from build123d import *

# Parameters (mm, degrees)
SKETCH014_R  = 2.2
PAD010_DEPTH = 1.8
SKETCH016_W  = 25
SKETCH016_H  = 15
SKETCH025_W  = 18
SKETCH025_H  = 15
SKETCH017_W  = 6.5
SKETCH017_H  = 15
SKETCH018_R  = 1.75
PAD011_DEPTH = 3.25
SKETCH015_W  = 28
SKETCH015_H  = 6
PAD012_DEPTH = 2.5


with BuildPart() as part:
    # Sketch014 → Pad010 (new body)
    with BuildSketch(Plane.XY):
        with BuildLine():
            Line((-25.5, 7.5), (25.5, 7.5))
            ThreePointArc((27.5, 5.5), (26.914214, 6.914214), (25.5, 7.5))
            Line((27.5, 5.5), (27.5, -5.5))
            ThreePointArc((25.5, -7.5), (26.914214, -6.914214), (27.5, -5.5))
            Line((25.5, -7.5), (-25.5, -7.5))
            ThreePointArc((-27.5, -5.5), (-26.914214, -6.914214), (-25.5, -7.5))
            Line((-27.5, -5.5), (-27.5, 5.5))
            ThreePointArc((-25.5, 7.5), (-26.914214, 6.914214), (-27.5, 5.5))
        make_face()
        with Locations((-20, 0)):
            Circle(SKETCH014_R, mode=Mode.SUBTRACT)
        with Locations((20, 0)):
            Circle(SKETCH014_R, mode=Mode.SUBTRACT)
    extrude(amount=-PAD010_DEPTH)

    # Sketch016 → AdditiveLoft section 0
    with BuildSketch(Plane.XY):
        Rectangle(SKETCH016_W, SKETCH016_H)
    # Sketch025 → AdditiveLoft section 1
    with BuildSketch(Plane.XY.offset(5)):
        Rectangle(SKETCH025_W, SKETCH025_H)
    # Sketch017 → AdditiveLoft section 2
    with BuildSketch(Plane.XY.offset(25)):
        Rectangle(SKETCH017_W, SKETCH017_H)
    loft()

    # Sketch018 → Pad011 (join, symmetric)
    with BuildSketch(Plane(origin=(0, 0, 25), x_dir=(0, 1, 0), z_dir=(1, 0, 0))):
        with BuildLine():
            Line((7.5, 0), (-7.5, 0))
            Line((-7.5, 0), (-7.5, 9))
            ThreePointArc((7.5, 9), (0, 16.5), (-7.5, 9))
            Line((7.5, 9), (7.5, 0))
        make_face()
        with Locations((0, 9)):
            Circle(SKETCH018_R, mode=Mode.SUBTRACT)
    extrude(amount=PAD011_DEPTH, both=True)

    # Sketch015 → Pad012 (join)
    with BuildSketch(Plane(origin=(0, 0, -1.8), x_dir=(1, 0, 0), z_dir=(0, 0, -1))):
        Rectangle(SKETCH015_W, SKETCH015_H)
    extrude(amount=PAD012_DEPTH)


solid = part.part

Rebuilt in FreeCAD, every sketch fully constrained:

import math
import FreeCAD as App
import Part
import Sketcher
from FreeCAD import Vector
Q = App.Units.Quantity

doc = App.newDocument("Part")
body = doc.addObject("PartDesign::Body", "Body")

# Sketch on XY plane
sketch1 = body.newObject("Sketcher::SketchObject", "Sketch")
sketch1.AttachmentSupport = (doc.getObject("XY_Plane"), [""])
sketch1.MapMode = "FlatFace"
sketch1.addGeometry([
    Part.LineSegment(Vector(25.5, 7.5, 0), Vector(-25.5, 7.5, 0)),  # 0
    Part.ArcOfCircle(Part.Circle(Vector(-25.5, 5.5, 0), Vector(0, 0, 1), 2), math.radians(90), math.radians(180)),  # 1
    Part.LineSegment(Vector(-27.5, 5.5, 0), Vector(-27.5, -5.5, 0)),  # 2
    Part.ArcOfCircle(Part.Circle(Vector(-25.5, -5.5, 0), Vector(0, 0, 1), 2), math.radians(180), math.radians(270)),  # 3
    Part.LineSegment(Vector(-25.5, -7.5, 0), Vector(25.5, -7.5, 0)),  # 4
    Part.ArcOfCircle(Part.Circle(Vector(25.5, -5.5, 0), Vector(0, 0, 1), 2), math.radians(-90), math.radians(0)),  # 5
    Part.LineSegment(Vector(27.5, -5.5, 0), Vector(27.5, 5.5, 0)),  # 6
    Part.ArcOfCircle(Part.Circle(Vector(25.5, 5.5, 0), Vector(0, 0, 1), 2), math.radians(0), math.radians(90)),  # 7
    Part.Circle(Vector(20, 0, 0), Vector(0, 0, 1), 2.2),  # 8
    Part.Circle(Vector(-20, 0, 0), Vector(0, 0, 1), 2.2),  # 9
], False)
sketch1.addConstraint([
    Sketcher.Constraint("Tangent", 0, 2, 1, 1),
    Sketcher.Constraint("Tangent", 1, 2, 2, 1),
    Sketcher.Constraint("Tangent", 2, 2, 3, 1),
    Sketcher.Constraint("Tangent", 3, 2, 4, 1),
    Sketcher.Constraint("Tangent", 4, 2, 5, 1),
    Sketcher.Constraint("Tangent", 5, 2, 6, 1),
    Sketcher.Constraint("Tangent", 6, 2, 7, 1),
    Sketcher.Constraint("Tangent", 7, 2, 0, 1),
    Sketcher.Constraint("Horizontal", 0),
    Sketcher.Constraint("Vertical", 2),
    Sketcher.Constraint("Horizontal", 4),
    Sketcher.Constraint("Vertical", 6),
    Sketcher.Constraint("Equal", 1, 3),
    Sketcher.Constraint("Equal", 3, 5),
    Sketcher.Constraint("Equal", 5, 7),
    Sketcher.Constraint("Equal", 8, 9),
    Sketcher.Constraint("Symmetric", 1, 3, 5, 3, -1, 1),
    Sketcher.Constraint("Symmetric", 8, 3, 9, 3, -1, 1),
    Sketcher.Constraint("PointOnObject", 8, 3, -1),
    Sketcher.Constraint("Radius", 1, Q("1.999999 mm")),
    Sketcher.Constraint("Diameter", 8, Q("4.4 mm")),
    Sketcher.Constraint("DistanceX", 0, 2, 0, 1, Q("51 mm")),
    Sketcher.Constraint("DistanceY", 2, 2, 2, 1, Q("11 mm")),
    Sketcher.Constraint("DistanceX", -1, 1, 8, 3, Q("20 mm")),
])
pad1 = body.newObject("PartDesign::Pad", "Pad")
pad1.Profile = sketch1
pad1.Length = 1.8
pad1.Reversed = True

# Sketch on XY plane
sketch2 = body.newObject("Sketcher::SketchObject", "Sketch001")
sketch2.AttachmentSupport = (doc.getObject("XY_Plane"), [""])
sketch2.MapMode = "FlatFace"
sketch2.addGeometry([
    Part.LineSegment(Vector(-12, 8, 0), Vector(-12, -8, 0)),
    Part.LineSegment(Vector(-12, -8, 0), Vector(12, -8, 0)),
    Part.LineSegment(Vector(12, -8, 0), Vector(12, 8, 0)),
    Part.LineSegment(Vector(12, 8, 0), Vector(-12, 8, 0)),
], False)
sketch2.addConstraint([
    Sketcher.Constraint("Coincident", 0, 2, 1, 1),
    Sketcher.Constraint("Coincident", 1, 2, 2, 1),
    Sketcher.Constraint("Coincident", 2, 2, 3, 1),
    Sketcher.Constraint("Coincident", 3, 2, 0, 1),
    Sketcher.Constraint("Vertical", 0),
    Sketcher.Constraint("Horizontal", 1),
    Sketcher.Constraint("Vertical", 2),
    Sketcher.Constraint("Horizontal", 3),
    Sketcher.Constraint("Symmetric", 0, 2, 2, 2, -1, 1),
    Sketcher.Constraint("DistanceX", 1, 1, 1, 2, Q("25 mm")),
    Sketcher.Constraint("DistanceY", 0, 2, 0, 1, Q("15 mm")),
])

# Sketch on XY plane
sketch3 = body.newObject("Sketcher::SketchObject", "Sketch002")
sketch3.AttachmentSupport = (doc.getObject("XY_Plane"), [""])
sketch3.MapMode = "FlatFace"
sketch3.AttachmentOffset = App.Placement(Vector(0, 0, 5), App.Rotation())
sketch3.addGeometry([
    Part.LineSegment(Vector(-9, 8, 0), Vector(-9, -8, 0)),
    Part.LineSegment(Vector(-9, -8, 0), Vector(9, -8, 0)),
    Part.LineSegment(Vector(9, -8, 0), Vector(9, 8, 0)),
    Part.LineSegment(Vector(9, 8, 0), Vector(-9, 8, 0)),
], False)
sketch3.addConstraint([
    Sketcher.Constraint("Coincident", 0, 2, 1, 1),
    Sketcher.Constraint("Coincident", 1, 2, 2, 1),
    Sketcher.Constraint("Coincident", 2, 2, 3, 1),
    Sketcher.Constraint("Coincident", 3, 2, 0, 1),
    Sketcher.Constraint("Vertical", 0),
    Sketcher.Constraint("Horizontal", 1),
    Sketcher.Constraint("Vertical", 2),
    Sketcher.Constraint("Horizontal", 3),
    Sketcher.Constraint("Symmetric", 0, 2, 2, 2, -1, 1),
    Sketcher.Constraint("DistanceX", 1, 1, 1, 2, Q("18 mm")),
    Sketcher.Constraint("DistanceY", 0, 2, 0, 1, Q("15 mm")),
])

# Sketch on XY plane
sketch4 = body.newObject("Sketcher::SketchObject", "Sketch003")
sketch4.AttachmentSupport = (doc.getObject("XY_Plane"), [""])
sketch4.MapMode = "FlatFace"
sketch4.AttachmentOffset = App.Placement(Vector(0, 0, 25), App.Rotation())
sketch4.addGeometry([
    Part.LineSegment(Vector(-3, 8, 0), Vector(-3, -8, 0)),
    Part.LineSegment(Vector(-3, -8, 0), Vector(3, -8, 0)),
    Part.LineSegment(Vector(3, -8, 0), Vector(3, 8, 0)),
    Part.LineSegment(Vector(3, 8, 0), Vector(-3, 8, 0)),
], False)
sketch4.addConstraint([
    Sketcher.Constraint("Coincident", 0, 2, 1, 1),
    Sketcher.Constraint("Coincident", 1, 2, 2, 1),
    Sketcher.Constraint("Coincident", 2, 2, 3, 1),
    Sketcher.Constraint("Coincident", 3, 2, 0, 1),
    Sketcher.Constraint("Vertical", 0),
    Sketcher.Constraint("Horizontal", 1),
    Sketcher.Constraint("Vertical", 2),
    Sketcher.Constraint("Horizontal", 3),
    Sketcher.Constraint("Symmetric", 0, 2, 2, 2, -1, 1),
    Sketcher.Constraint("DistanceY", 0, 2, 0, 1, Q("15 mm")),
    Sketcher.Constraint("DistanceX", 1, 1, 1, 2, Q("6.5 mm")),
])

additiveloft = body.newObject("PartDesign::AdditiveLoft", "AdditiveLoft")
additiveloft.Profile = sketch2
additiveloft.Sections = [sketch3, sketch4]

# Sketch on YZ plane
sketch5 = body.newObject("Sketcher::SketchObject", "Sketch004")
sketch5.AttachmentSupport = (doc.getObject("YZ_Plane"), [""])
sketch5.MapMode = "FlatFace"
sketch5.addGeometry([
    Part.LineSegment(Vector(-7.5, 25, 0), Vector(7.5, 25, 0)),  # 0
    Part.LineSegment(Vector(7.5, 25, 0), Vector(7.5, 34, 0)),  # 1
    Part.ArcOfCircle(Part.Circle(Vector(0, 34, 0), Vector(0, 0, 1), 7.5), math.radians(0), math.radians(180)),  # 2
    Part.LineSegment(Vector(-7.5, 34, 0), Vector(-7.5, 25, 0)),  # 3
    Part.Circle(Vector(0, 34, 0), Vector(0, 0, 1), 1.8),  # 4
], False)
sketch5.addConstraint([
    Sketcher.Constraint("Coincident", 0, 2, 1, 1),
    Sketcher.Constraint("Tangent", 1, 2, 2, 1),
    Sketcher.Constraint("Tangent", 2, 2, 3, 1),
    Sketcher.Constraint("Coincident", 3, 2, 0, 1),
    Sketcher.Constraint("Horizontal", 0),
    Sketcher.Constraint("Vertical", 1),
    Sketcher.Constraint("Vertical", 3),
    Sketcher.Constraint("Coincident", 4, 3, 2, 3),
    Sketcher.Constraint("PointOnObject", 2, 3, -2),
    Sketcher.Constraint("Diameter", 4, Q("3.5 mm")),
    Sketcher.Constraint("Radius", 2, Q("7.5 mm")),
    Sketcher.Constraint("DistanceY", 1, 1, 1, 2, Q("9 mm")),
    Sketcher.Constraint("DistanceY", -1, 1, 2, 3, Q("34 mm")),
])
pad2 = body.newObject("PartDesign::Pad", "Pad001")
pad2.Profile = sketch5
pad2.Length = 6.5
pad2.Midplane = True

# Sketch on XY plane
sketch6 = body.newObject("Sketcher::SketchObject", "Sketch005")
sketch6.AttachmentSupport = (doc.getObject("XY_Plane"), [""])
sketch6.MapMode = "FlatFace"
sketch6.AttachmentOffset = App.Placement(Vector(0, 0, -1.8), App.Rotation())
sketch6.addGeometry([
    Part.LineSegment(Vector(-14, -3, 0), Vector(-14, 3, 0)),
    Part.LineSegment(Vector(-14, 3, 0), Vector(14, 3, 0)),
    Part.LineSegment(Vector(14, 3, 0), Vector(14, -3, 0)),
    Part.LineSegment(Vector(14, -3, 0), Vector(-14, -3, 0)),
], False)
sketch6.addConstraint([
    Sketcher.Constraint("Coincident", 0, 2, 1, 1),
    Sketcher.Constraint("Coincident", 1, 2, 2, 1),
    Sketcher.Constraint("Coincident", 2, 2, 3, 1),
    Sketcher.Constraint("Coincident", 3, 2, 0, 1),
    Sketcher.Constraint("Vertical", 0),
    Sketcher.Constraint("Horizontal", 1),
    Sketcher.Constraint("Vertical", 2),
    Sketcher.Constraint("Horizontal", 3),
    Sketcher.Constraint("Symmetric", 0, 2, 2, 2, -1, 1),
    Sketcher.Constraint("DistanceX", 1, 1, 1, 2, Q("28 mm")),
    Sketcher.Constraint("DistanceY", 0, 1, 0, 2, Q("6 mm")),
])
pad3 = body.newObject("PartDesign::Pad", "Pad002")
pad3.Profile = sketch6
pad3.Length = 2.5
pad3.Reversed = True

doc.recompute()
